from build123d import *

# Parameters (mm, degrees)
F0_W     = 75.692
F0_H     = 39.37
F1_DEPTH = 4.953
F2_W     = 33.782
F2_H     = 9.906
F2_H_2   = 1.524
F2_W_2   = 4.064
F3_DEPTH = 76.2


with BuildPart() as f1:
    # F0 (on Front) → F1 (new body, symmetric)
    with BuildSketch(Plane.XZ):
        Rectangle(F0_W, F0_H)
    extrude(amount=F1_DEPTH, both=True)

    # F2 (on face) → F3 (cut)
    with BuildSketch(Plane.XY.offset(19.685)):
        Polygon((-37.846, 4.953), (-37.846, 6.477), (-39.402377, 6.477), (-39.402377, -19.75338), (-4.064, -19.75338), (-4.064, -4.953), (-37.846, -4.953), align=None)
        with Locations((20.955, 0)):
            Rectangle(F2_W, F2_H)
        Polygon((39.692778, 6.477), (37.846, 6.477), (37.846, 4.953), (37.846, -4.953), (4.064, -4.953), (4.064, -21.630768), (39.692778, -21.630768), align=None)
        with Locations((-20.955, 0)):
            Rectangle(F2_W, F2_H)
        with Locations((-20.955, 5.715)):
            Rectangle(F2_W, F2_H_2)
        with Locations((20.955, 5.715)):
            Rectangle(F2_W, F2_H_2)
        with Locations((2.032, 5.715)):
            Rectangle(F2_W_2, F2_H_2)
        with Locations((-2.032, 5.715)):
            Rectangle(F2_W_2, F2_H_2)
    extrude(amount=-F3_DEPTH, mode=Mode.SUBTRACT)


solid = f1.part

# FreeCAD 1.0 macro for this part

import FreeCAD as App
import Part
import Sketcher

V = App.Vector
Q = App.Units.Quantity

doc = App.newDocument("Part")
body = doc.addObject("PartDesign::Body", "Body")

sketch1 = body.newObject("Sketcher::SketchObject", "Sketch")
sketch1.AttachmentSupport = (doc.getObject("XZ_Plane"), [""])
sketch1.MapMode = "FlatFace"
sketch1.addGeometry([
    Part.LineSegment(V(-38, 20, 0), V(-38, -20, 0)),
    Part.LineSegment(V(-38, -20, 0), V(38, -20, 0)),
    Part.LineSegment(V(38, -20, 0), V(38, 20, 0)),
    Part.LineSegment(V(38, 20, 0), V(-38, 20, 0)),
], False)
sketch1.addConstraint([
    Sketcher.Constraint("Coincident", 0, 2, 1, 1),
    Sketcher.Constraint("Coincident", 1, 2, 2, 1),
    Sketcher.Constraint("Coincident", 2, 2, 3, 1),
    Sketcher.Constraint("Coincident", 3, 2, 0, 1),
    Sketcher.Constraint("Vertical", 0),
    Sketcher.Constraint("Horizontal", 1),
    Sketcher.Constraint("Vertical", 2),
    Sketcher.Constraint("Horizontal", 3),
    Sketcher.Constraint("Symmetric", 0, 2, 2, 2, -1, 1),
    Sketcher.Constraint("DistanceX", 1, 1, 1, 2, Q("2.98 in")),
    Sketcher.Constraint("DistanceY", 0, 2, 0, 1, Q("1.55 in")),
])
pad1 = body.newObject("PartDesign::Pad", "Pad")
pad1.Profile = sketch1
pad1.Length = Q("0.39 in")
pad1.Midplane = True

sketch2 = body.newObject("Sketcher::SketchObject", "Sketch001")
sketch2.AttachmentSupport = (doc.getObject("XY_Plane"), [""])
sketch2.MapMode = "FlatFace"
sketch2.AttachmentOffset = App.Placement(V(0, 0, 0.775 * 25.4), App.Rotation())
sketch2.addGeometry([
    Part.LineSegment(V(-39, 6, 0), V(-39, -20, 0)),
    Part.LineSegment(V(-39, -20, 0), V(-4, -20, 0)),
    Part.LineSegment(V(-4, -20, 0), V(-4, 5, 0)),
    Part.LineSegment(V(-4, 5, 0), V(4, 5, 0)),
    Part.LineSegment(V(4, 5, 0), V(4, -22, 0)),
    Part.LineSegment(V(4, -22, 0), V(40, -22, 0)),
    Part.LineSegment(V(40, -22, 0), V(40, 6, 0)),
    Part.LineSegment(V(40, 6, 0), V(-39, 6, 0)),
], False)
sketch2.addConstraint([
    Sketcher.Constraint("Coincident", 0, 2, 1, 1),
    Sketcher.Constraint("Coincident", 1, 2, 2, 1),
    Sketcher.Constraint("Coincident", 2, 2, 3, 1),
    Sketcher.Constraint("Coincident", 3, 2, 4, 1),
    Sketcher.Constraint("Coincident", 4, 2, 5, 1),
    Sketcher.Constraint("Coincident", 5, 2, 6, 1),
    Sketcher.Constraint("Coincident", 6, 2, 7, 1),
    Sketcher.Constraint("Coincident", 7, 2, 0, 1),
    Sketcher.Constraint("Vertical", 0),
    Sketcher.Constraint("Horizontal", 1),
    Sketcher.Constraint("Vertical", 2),
    Sketcher.Constraint("Horizontal", 3),
    Sketcher.Constraint("Vertical", 4),
    Sketcher.Constraint("Horizontal", 5),
    Sketcher.Constraint("Vertical", 6),
    Sketcher.Constraint("Horizontal", 7),
    Sketcher.Constraint("DistanceX", 3, 1, 3, 2, Q("0.32 in")),
    Sketcher.Constraint("DistanceX", 1, 2, -1, 1, Q("0.16 in")),
    Sketcher.Constraint("DistanceY", 3, 2, 6, 2, Q("0.06 in")),
    Sketcher.Constraint("DistanceY", -1, 1, 2, 2, Q("0.195 in")),
    Sketcher.Constraint("DistanceY", 0, 2, 0, 1, Q("26.23038 mm")),
    Sketcher.Constraint("DistanceY", 6, 1, 6, 2, Q("28.107768 mm")),
    Sketcher.Constraint("DistanceX", 1, 1, 1, 2, Q("35.338377 mm")),
    Sketcher.Constraint("DistanceX", 5, 1, 5, 2, Q("35.628778 mm")),
])
pocket1 = body.newObject("PartDesign::Pocket", "Pocket")
pocket1.Profile = sketch2
pocket1.Length = Q("3 in")

doc.recompute()
